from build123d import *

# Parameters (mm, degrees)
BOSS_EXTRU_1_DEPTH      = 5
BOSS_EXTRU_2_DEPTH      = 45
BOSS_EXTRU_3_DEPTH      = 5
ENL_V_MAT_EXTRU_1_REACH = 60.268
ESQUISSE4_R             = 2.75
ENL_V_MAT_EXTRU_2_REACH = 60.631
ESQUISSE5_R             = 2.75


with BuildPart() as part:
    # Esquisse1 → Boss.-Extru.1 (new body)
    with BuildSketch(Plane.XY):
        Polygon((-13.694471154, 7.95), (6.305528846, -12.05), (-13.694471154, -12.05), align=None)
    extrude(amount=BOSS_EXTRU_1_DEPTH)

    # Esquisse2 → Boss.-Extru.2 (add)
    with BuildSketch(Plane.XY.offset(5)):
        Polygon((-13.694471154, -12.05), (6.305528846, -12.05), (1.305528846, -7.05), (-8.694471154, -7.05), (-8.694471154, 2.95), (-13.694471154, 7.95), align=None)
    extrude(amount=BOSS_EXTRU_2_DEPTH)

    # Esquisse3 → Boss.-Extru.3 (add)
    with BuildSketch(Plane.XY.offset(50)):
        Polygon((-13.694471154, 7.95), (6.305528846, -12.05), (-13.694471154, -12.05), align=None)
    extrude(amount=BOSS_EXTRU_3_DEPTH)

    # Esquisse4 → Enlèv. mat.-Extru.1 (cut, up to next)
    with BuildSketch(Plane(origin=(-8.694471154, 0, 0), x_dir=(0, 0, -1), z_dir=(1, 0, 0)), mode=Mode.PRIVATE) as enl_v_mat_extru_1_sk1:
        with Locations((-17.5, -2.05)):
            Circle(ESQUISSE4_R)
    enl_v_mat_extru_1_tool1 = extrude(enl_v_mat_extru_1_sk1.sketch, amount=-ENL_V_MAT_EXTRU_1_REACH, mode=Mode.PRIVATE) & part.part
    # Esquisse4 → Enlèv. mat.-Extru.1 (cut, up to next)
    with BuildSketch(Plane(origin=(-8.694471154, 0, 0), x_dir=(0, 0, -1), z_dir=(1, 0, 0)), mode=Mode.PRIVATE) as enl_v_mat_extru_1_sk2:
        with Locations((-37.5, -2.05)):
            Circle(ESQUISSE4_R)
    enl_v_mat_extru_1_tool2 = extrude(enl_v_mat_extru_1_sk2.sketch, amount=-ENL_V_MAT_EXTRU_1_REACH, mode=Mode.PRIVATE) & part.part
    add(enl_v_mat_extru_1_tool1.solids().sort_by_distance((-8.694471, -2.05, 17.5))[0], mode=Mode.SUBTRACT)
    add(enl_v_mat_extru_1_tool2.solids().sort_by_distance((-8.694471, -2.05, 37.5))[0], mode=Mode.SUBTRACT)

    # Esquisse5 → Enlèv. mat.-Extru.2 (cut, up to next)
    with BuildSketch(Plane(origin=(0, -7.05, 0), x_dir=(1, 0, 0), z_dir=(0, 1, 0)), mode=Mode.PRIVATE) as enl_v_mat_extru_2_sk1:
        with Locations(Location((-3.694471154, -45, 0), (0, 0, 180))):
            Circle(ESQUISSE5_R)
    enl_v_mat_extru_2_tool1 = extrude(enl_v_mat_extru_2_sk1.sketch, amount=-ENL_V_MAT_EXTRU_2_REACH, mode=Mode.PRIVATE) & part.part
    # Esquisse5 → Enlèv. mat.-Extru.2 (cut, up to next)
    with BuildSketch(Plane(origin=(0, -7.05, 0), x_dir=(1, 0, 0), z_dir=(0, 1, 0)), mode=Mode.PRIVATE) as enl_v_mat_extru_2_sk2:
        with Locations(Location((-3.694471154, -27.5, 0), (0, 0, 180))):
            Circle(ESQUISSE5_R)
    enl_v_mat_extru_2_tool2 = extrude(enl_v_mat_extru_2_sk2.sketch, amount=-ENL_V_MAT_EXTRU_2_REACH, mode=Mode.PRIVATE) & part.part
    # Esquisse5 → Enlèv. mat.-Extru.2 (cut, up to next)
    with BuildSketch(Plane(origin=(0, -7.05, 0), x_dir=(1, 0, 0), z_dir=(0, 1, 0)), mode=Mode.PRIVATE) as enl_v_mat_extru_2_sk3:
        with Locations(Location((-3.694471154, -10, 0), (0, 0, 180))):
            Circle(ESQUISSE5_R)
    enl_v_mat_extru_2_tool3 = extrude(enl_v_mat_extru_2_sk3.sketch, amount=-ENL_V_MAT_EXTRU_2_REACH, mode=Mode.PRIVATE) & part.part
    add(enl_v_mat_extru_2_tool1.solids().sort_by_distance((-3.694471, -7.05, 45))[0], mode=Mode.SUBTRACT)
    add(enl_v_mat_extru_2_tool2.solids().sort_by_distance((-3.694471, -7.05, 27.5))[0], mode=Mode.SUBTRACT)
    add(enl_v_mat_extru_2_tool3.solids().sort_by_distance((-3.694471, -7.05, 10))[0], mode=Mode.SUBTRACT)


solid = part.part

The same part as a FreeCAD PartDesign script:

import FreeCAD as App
import Part
import Sketcher

V = App.Vector
Q = App.Units.Quantity


def add_polygon(sketch, points):
    """Adds a closed chain of lines whose ends are joined by coincident constraints."""
    first, n = sketch.GeometryCount, len(points)
    for a, b in zip(points, points[1:] + points[:1]):
        sketch.addGeometry(Part.LineSegment(App.Vector(*a, 0), App.Vector(*b, 0)), False)
    for i in range(n):
        sketch.addConstraint(Sketcher.Constraint("Coincident", first + i, 2, first + (i + 1) % n, 1))

doc = App.newDocument("Part")
body = doc.addObject("PartDesign::Body", "Body")

# Sketch on XY plane
sketch1 = body.newObject("Sketcher::SketchObject", "Sketch")
sketch1.AttachmentSupport = (doc.getObject("XY_Plane"), [""])
sketch1.MapMode = "FlatFace"
add_polygon(sketch1, [(6, -12), (-14, 8), (-14, -12)])  # lines 0-2
sketch1.addConstraint([
    Sketcher.Constraint("Vertical", 1),
    Sketcher.Constraint("Horizontal", 2),
    Sketcher.Constraint("Equal", 2, 1),
    Sketcher.Constraint("DistanceX", 2, 1, 2, 2, Q("20 mm")),
    Sketcher.Constraint("DistanceY", -1, 1, 0, 2, Q("7.95 mm")),
    Sketcher.Constraint("DistanceX", 0, 2, -1, 1, Q("13.694471 mm")),
])
pad1 = body.newObject("PartDesign::Pad", "Pad")
pad1.Profile = sketch1
pad1.Length = 5

# Sketch on XY plane
sketch2 = body.newObject("Sketcher::SketchObject", "Sketch001")
sketch2.AttachmentSupport = (doc.getObject("XY_Plane"), [""])
sketch2.MapMode = "FlatFace"
sketch2.AttachmentOffset = App.Placement(V(0, 0, 5), App.Rotation())
add_polygon(sketch2, [(-14, -12), (6, -12), (1, -7), (-9, -7), (-9, 3), (-14, 8)])  # lines 0-5
sketch2.addConstraint([
    Sketcher.Constraint("Horizontal", 0),
    Sketcher.Constraint("Horizontal", 2),
    Sketcher.Constraint("Vertical", 3),
    Sketcher.Constraint("Vertical", 5),
    Sketcher.Constraint("Parallel", 1, 4),
    Sketcher.Constraint("Equal", 2, 3),
    Sketcher.Constraint("Equal", 0, 5),
    Sketcher.Constraint("Equal", 1, 4),
    Sketcher.Constraint("DistanceX", 0, 1, 0, 2, Q("20 mm")),
    Sketcher.Constraint("DistanceX", 2, 2, 2, 1, Q("10 mm")),
    Sketcher.Constraint("DistanceY", 0, 2, -1, 1, Q("12.05 mm")),
    Sketcher.Constraint("DistanceX", -1, 1, 0, 2, Q("6.305529 mm")),
])
pad2 = body.newObject("PartDesign::Pad", "Pad001")
pad2.Profile = sketch2
pad2.Length = 45

# Sketch on XY plane
sketch3 = body.newObject("Sketcher::SketchObject", "Sketch002")
sketch3.AttachmentSupport = (doc.getObject("XY_Plane"), [""])
sketch3.MapMode = "FlatFace"
sketch3.AttachmentOffset = App.Placement(V(0, 0, 50), App.Rotation())
add_polygon(sketch3, [(6, -12), (-14, 8), (-14, -12)])  # lines 0-2
sketch3.addConstraint([
    Sketcher.Constraint("Vertical", 1),
    Sketcher.Constraint("Horizontal", 2),
    Sketcher.Constraint("Equal", 2, 1),
    Sketcher.Constraint("DistanceX", 2, 1, 2, 2, Q("20 mm")),
    Sketcher.Constraint("DistanceY", -1, 1, 0, 2, Q("7.95 mm")),
    Sketcher.Constraint("DistanceX", 0, 2, -1, 1, Q("13.694471 mm")),
])
pad3 = body.newObject("PartDesign::Pad", "Pad002")
pad3.Profile = sketch3
pad3.Length = 5

# Sketch on YZ plane
sketch4 = body.newObject("Sketcher::SketchObject", "Sketch003")
sketch4.AttachmentSupport = (doc.getObject("YZ_Plane"), [""])
sketch4.MapMode = "FlatFace"
sketch4.AttachmentOffset = App.Placement(V(0, 0, -8.694471), App.Rotation())
sketch4.addGeometry(Part.Circle(V(-2, 17.5, 0), V(0, 0, 1), 2.8), False)
sketch4.addConstraint([
    Sketcher.Constraint("Diameter", 0, Q("5.5 mm")),
    Sketcher.Constraint("DistanceY", -1, 1, 0, 3, Q("17.5 mm")),
    Sketcher.Constraint("DistanceX", 0, 3, -1, 1, Q("2.05 mm")),
])
pocket1 = body.newObject("PartDesign::Pocket", "Pocket")
pocket1.Profile = sketch4
pocket1.Type = "UpToFirst"

# Sketch on YZ plane
sketch5 = body.newObject("Sketcher::SketchObject", "Sketch004")
sketch5.AttachmentSupport = (doc.getObject("YZ_Plane"), [""])
sketch5.MapMode = "FlatFace"
sketch5.AttachmentOffset = App.Placement(V(0, 0, -8.694471), App.Rotation())
sketch5.addGeometry(Part.Circle(V(-2, 37.5, 0), V(0, 0, 1), 2.8), False)
sketch5.addConstraint([
    Sketcher.Constraint("Diameter", 0, Q("5.5 mm")),
    Sketcher.Constraint("DistanceY", -1, 1, 0, 3, Q("37.5 mm")),
    Sketcher.Constraint("DistanceX", 0, 3, -1, 1, Q("2.05 mm")),
])
pocket2 = body.newObject("PartDesign::Pocket", "Pocket001")
pocket2.Profile = sketch5
pocket2.Type = "UpToFirst"

# Sketch on XZ plane
sketch6 = body.newObject("Sketcher::SketchObject", "Sketch005")
sketch6.AttachmentSupport = (doc.getObject("XZ_Plane"), [""])
sketch6.MapMode = "FlatFace"
sketch6.AttachmentOffset = App.Placement(V(0, 0, 7.05), App.Rotation())
sketch6.addGeometry(Part.Circle(V(-3.7, 45, 0), V(0, 0, 1), 2.8), False)
sketch6.addConstraint([
    Sketcher.Constraint("Diameter", 0, Q("5.5 mm")),
    Sketcher.Constraint("DistanceY", -1, 1, 0, 3, Q("45 mm")),
    Sketcher.Constraint("DistanceX", 0, 3, -1, 1, Q("3.694471 mm")),
])
pocket3 = body.newObject("PartDesign::Pocket", "Pocket002")
pocket3.Profile = sketch6
pocket3.Type = "UpToFirst"
pocket3.Reversed = True

# Sketch on XZ plane
sketch7 = body.newObject("Sketcher::SketchObject", "Sketch006")
sketch7.AttachmentSupport = (doc.getObject("XZ_Plane"), [""])
sketch7.MapMode = "FlatFace"
sketch7.AttachmentOffset = App.Placement(V(0, 0, 7.05), App.Rotation())
sketch7.addGeometry(Part.Circle(V(-3.7, 27.5, 0), V(0, 0, 1), 2.8), False)
sketch7.addConstraint([
    Sketcher.Constraint("Diameter", 0, Q("5.5 mm")),
    Sketcher.Constraint("DistanceY", -1, 1, 0, 3, Q("27.5 mm")),
    Sketcher.Constraint("DistanceX", 0, 3, -1, 1, Q("3.694471 mm")),
])
pocket4 = body.newObject("PartDesign::Pocket", "Pocket003")
pocket4.Profile = sketch7
pocket4.Type = "UpToFirst"
pocket4.Reversed = True

# Sketch on XZ plane
sketch8 = body.newObject("Sketcher::SketchObject", "Sketch007")
sketch8.AttachmentSupport = (doc.getObject("XZ_Plane"), [""])
sketch8.MapMode = "FlatFace"
sketch8.AttachmentOffset = App.Placement(V(0, 0, 7.05), App.Rotation())
sketch8.addGeometry(Part.Circle(V(-3.7, 10, 0), V(0, 0, 1), 2.8), False)
sketch8.addConstraint([
    Sketcher.Constraint("Diameter", 0, Q("5.5 mm")),
    Sketcher.Constraint("DistanceY", -1, 1, 0, 3, Q("10 mm")),
    Sketcher.Constraint("DistanceX", 0, 3, -1, 1, Q("3.694471 mm")),
])
pocket5 = body.newObject("PartDesign::Pocket", "Pocket004")
pocket5.Profile = sketch8
pocket5.Type = "UpToFirst"
pocket5.Reversed = True

doc.recompute()
